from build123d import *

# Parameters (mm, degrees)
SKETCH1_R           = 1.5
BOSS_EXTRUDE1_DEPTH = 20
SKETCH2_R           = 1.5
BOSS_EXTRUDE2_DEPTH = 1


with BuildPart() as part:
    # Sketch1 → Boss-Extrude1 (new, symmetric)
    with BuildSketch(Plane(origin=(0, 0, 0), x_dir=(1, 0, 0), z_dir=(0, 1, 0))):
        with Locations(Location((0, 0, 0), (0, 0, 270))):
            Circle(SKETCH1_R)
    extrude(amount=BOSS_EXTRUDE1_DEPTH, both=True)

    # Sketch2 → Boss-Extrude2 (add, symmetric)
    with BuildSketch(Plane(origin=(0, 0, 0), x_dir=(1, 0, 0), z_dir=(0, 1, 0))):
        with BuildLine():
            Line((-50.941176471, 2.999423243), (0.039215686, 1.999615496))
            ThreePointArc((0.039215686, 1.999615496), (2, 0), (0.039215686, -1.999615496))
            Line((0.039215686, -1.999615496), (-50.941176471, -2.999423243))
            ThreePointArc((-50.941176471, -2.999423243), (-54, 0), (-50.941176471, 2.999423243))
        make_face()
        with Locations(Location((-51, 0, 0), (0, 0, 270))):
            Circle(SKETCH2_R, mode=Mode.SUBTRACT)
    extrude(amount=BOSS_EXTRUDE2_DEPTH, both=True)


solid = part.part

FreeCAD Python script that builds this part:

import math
import FreeCAD as App
import Part
import Sketcher
Q = App.Units.Quantity

doc = App.newDocument("Part")
body = doc.addObject("PartDesign::Body", "Body")

# Sketch on XZ plane
sketch1 = body.newObject("Sketcher::SketchObject", "Sketch")
sketch1.AttachmentSupport = (doc.getObject("XZ_Plane"), [""])
sketch1.MapMode = "FlatFace"
sketch1.addGeometry(Part.Circle(App.Vector(0, 0, 0), App.Vector(0, 0, 1), 1.5), False)
sketch1.addConstraint([
    Sketcher.Constraint("Coincident", 0, 3, -1, 1),
    Sketcher.Constraint("Diameter", 0, Q("3 mm")),
])
pad1 = body.newObject("PartDesign::Pad", "Pad")
pad1.Profile = sketch1
pad1.Length = 40
pad1.Midplane = True

# Sketch on XZ plane
sketch2 = body.newObject("Sketcher::SketchObject", "Sketch001")
sketch2.AttachmentSupport = (doc.getObject("XZ_Plane"), [""])
sketch2.MapMode = "FlatFace"
sketch2.addGeometry([
    Part.LineSegment(App.Vector(0, -2, 0), App.Vector(-50.9, -3, 0)),  # 0
    Part.ArcOfCircle(Part.Circle(App.Vector(-51, 0, 0), App.Vector(0, 0, 1), 3), math.radians(89), math.radians(271)),  # 1
    Part.LineSegment(App.Vector(-50.9, 3, 0), App.Vector(0, 2, 0)),  # 2
    Part.ArcOfCircle(Part.Circle(App.Vector(0, 0, 0), App.Vector(0, 0, 1), 2), math.radians(-89), math.radians(89)),  # 3
    Part.Circle(App.Vector(-51, 0, 0), App.Vector(0, 0, 1), 1.5),  # 4
], False)
sketch2.addConstraint([
    Sketcher.Constraint("Tangent", 0, 2, 1, 2),
    Sketcher.Constraint("Tangent", 1, 1, 2, 1),
    Sketcher.Constraint("Tangent", 2, 2, 3, 2),
    Sketcher.Constraint("Tangent", 3, 1, 0, 1),
    Sketcher.Constraint("Coincident", 3, 3, -1, 1),
    Sketcher.Constraint("Coincident", 4, 3, 1, 3),
    Sketcher.Constraint("PointOnObject", 1, 3, -1),
    Sketcher.Constraint("Diameter", 4, Q("3 mm")),
    Sketcher.Constraint("Radius", 1, Q("3 mm")),
    Sketcher.Constraint("Radius", 3, Q("2 mm")),
    Sketcher.Constraint("DistanceX", 1, 3, -1, 1, Q("51 mm")),
])
pad2 = body.newObject("PartDesign::Pad", "Pad001")
pad2.Profile = sketch2
pad2.Length = 2
pad2.Midplane = True

doc.recompute()
